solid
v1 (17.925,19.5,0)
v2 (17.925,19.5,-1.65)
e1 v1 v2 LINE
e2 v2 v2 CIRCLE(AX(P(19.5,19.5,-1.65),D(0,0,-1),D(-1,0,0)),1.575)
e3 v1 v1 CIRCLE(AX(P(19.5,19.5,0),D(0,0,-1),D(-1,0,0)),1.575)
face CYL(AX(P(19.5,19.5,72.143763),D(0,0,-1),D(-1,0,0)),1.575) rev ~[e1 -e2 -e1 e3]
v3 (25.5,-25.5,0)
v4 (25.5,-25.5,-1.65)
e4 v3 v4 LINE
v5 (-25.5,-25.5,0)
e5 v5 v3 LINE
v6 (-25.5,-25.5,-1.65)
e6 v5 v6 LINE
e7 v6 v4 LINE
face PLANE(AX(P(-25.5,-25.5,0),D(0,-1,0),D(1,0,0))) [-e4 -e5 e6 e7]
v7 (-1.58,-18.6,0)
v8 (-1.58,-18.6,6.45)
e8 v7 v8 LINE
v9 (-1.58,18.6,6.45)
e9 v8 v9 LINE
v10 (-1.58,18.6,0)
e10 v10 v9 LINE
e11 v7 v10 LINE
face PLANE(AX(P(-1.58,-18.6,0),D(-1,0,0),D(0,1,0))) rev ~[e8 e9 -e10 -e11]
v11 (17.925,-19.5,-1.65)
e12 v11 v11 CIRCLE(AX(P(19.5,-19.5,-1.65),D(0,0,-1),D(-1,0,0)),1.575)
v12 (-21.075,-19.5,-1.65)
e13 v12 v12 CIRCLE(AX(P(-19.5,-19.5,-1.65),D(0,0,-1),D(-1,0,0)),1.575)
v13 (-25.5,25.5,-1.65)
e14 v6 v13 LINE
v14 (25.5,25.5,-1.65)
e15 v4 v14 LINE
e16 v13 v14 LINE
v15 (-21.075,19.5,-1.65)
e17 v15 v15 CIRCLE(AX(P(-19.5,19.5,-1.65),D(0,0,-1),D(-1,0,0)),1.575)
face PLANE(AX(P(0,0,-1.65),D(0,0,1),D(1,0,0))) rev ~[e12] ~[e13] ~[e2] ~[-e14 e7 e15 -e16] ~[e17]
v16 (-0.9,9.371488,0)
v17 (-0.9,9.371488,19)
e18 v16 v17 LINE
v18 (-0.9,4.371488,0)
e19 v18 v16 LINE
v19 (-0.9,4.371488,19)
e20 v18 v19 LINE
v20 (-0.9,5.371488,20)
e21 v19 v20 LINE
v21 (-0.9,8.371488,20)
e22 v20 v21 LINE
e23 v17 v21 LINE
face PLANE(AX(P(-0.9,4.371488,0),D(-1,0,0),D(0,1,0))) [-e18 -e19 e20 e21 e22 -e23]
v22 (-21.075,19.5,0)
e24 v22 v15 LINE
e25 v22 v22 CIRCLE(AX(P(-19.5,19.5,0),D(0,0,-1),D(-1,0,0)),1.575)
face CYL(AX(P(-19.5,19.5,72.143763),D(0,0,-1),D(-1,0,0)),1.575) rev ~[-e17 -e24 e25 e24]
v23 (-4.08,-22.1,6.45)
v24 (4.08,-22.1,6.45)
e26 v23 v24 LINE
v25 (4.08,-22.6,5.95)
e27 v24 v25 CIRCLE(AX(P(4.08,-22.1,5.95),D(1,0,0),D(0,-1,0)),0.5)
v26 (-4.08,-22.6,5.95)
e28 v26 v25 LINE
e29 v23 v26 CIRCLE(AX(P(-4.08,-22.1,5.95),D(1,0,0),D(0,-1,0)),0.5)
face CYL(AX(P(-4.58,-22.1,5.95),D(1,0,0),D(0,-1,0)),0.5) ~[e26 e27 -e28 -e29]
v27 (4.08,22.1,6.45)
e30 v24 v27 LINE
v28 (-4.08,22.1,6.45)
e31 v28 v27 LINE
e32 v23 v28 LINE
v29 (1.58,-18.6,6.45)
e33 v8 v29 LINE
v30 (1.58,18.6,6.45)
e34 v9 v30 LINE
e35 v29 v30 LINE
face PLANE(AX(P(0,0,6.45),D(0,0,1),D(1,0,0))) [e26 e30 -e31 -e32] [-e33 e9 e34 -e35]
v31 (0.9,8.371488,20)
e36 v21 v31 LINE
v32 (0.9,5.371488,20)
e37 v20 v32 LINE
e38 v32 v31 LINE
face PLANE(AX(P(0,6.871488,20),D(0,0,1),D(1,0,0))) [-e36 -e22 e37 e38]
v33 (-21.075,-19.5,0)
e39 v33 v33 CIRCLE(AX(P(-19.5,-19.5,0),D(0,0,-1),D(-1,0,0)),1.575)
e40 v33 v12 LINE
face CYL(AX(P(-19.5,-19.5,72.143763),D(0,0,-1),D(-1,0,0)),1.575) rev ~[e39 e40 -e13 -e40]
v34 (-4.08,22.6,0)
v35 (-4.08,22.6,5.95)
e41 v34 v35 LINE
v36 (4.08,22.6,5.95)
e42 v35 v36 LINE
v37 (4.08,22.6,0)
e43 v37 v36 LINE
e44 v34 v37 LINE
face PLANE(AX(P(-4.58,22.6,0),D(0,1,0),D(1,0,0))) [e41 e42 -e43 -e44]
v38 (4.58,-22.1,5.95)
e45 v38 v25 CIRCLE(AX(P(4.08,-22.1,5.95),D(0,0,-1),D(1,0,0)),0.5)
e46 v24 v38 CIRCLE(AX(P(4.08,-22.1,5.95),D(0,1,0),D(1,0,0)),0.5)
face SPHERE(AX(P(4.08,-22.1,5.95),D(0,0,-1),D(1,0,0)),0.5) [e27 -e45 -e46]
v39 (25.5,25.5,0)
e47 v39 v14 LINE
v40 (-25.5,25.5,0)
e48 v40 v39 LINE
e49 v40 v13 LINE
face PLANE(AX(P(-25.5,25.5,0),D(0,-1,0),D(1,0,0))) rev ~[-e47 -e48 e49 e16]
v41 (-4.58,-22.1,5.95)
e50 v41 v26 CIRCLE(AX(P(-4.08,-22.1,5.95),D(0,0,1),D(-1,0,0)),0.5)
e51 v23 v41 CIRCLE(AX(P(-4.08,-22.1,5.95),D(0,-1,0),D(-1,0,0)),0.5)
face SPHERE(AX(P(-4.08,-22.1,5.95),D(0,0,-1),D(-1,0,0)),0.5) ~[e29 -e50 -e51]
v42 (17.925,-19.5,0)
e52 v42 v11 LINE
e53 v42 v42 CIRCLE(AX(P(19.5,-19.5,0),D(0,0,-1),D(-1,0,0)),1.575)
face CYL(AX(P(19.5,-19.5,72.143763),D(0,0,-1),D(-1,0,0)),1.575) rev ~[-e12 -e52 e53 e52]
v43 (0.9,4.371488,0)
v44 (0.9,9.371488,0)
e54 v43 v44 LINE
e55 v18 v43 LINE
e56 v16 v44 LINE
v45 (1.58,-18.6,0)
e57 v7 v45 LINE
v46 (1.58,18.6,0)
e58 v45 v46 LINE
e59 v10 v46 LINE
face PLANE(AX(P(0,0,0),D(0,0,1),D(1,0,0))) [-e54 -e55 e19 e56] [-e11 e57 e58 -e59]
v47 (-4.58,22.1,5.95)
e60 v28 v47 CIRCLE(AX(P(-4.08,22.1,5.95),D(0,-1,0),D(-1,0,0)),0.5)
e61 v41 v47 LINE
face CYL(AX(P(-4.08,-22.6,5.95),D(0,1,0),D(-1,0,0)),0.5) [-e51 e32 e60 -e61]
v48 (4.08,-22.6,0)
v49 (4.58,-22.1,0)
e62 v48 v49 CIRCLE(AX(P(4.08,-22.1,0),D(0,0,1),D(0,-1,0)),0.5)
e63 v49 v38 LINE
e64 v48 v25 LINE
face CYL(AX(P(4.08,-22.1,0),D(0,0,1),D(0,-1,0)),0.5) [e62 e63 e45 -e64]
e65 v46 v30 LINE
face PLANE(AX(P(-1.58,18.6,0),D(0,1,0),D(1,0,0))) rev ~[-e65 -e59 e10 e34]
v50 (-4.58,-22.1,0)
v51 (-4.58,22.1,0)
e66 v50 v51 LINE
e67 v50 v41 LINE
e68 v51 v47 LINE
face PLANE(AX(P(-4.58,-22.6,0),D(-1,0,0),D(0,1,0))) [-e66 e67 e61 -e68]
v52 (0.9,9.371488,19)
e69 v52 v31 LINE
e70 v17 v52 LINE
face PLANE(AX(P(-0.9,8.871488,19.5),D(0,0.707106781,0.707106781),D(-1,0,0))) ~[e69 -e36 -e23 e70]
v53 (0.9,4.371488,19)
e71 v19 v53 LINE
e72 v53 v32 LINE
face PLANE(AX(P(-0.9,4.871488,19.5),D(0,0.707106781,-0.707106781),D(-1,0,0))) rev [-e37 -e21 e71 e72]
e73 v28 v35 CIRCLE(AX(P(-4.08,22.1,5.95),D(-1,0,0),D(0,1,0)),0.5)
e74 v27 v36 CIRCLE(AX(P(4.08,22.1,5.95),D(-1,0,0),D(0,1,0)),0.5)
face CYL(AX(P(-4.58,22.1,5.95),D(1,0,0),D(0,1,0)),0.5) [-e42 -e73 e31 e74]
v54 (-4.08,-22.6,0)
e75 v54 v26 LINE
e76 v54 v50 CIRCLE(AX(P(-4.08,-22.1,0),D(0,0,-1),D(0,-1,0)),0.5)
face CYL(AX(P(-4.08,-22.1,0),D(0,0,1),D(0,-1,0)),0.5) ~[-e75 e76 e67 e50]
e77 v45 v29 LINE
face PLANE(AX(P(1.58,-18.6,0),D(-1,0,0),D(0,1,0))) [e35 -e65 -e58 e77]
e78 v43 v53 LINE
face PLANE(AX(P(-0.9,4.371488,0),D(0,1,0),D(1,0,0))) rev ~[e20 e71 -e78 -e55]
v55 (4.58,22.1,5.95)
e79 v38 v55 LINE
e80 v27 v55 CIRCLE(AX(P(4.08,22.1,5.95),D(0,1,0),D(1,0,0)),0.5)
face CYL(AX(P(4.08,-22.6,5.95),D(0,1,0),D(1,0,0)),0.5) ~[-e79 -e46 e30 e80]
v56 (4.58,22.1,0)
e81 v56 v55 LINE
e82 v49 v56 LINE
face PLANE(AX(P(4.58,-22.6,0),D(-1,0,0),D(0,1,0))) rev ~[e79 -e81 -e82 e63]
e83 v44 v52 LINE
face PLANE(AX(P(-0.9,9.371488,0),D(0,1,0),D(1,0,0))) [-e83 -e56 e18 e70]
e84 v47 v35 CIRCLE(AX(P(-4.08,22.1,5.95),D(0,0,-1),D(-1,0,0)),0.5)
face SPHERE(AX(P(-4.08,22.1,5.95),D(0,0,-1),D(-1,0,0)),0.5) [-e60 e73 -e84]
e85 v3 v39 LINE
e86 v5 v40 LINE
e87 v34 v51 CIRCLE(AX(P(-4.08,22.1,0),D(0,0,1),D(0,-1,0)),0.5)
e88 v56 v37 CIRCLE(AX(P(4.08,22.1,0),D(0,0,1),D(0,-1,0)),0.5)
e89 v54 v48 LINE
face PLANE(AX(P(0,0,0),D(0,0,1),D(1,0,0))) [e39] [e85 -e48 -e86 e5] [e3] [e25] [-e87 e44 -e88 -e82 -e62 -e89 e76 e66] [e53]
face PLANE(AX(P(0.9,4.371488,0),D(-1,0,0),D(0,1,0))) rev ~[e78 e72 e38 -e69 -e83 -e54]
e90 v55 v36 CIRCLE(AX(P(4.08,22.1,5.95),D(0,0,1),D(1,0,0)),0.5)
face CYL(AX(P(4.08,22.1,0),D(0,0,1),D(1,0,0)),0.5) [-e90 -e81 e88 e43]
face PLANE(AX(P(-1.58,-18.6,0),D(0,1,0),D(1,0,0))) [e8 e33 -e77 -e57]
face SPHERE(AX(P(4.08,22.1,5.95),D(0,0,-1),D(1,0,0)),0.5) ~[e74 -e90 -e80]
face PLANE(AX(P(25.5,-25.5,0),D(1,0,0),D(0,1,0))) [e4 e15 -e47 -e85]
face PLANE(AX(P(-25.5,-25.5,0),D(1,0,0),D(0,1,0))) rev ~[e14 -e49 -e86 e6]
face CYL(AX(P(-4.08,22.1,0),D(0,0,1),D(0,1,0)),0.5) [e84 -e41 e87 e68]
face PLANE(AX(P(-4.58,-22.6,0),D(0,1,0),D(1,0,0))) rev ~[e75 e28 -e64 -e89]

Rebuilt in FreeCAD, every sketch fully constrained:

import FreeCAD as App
import Part
import Sketcher


def edges_at(feature, points):
    """Names of the edges that pass closest to the given points."""
    edges = feature.Shape.Edges
    near = lambda p: min(range(len(edges)), key=lambda i: edges[i].distToShape(Part.Vertex(*p))[0])
    return sorted({f"Edge{near(p) + 1}" for p in points})

doc = App.newDocument("Part")
params = doc.addObject("Spreadsheet::Sheet", "Params")
for row, (alias, value) in enumerate([
    ("sketch1_width", "51 mm"),
    ("pad1_length", "1.65 mm"),
    ("sketch2_diameter", "3.15 mm"),
    ("hole_diameter", "3.15 mm"),
    ("sketch3_height", "45.2 mm"),
    ("sketch3_height2", "37.2 mm"),
    ("sketch3_width", "9.16 mm"),
    ("pad2_length", "6.45 mm"),
    ("fillet_radius", "0.5 mm"),
    ("sketch4_height", "5 mm"),
    ("sketch4_width", "1.8 mm"),
    ("pad3_length", "20 mm"),
    ("chamfer_size", "1 mm"),
], start=1):
    params.set(f"A{row}", alias)
    params.set(f"B{row}", "=" + value)
    params.setAlias(f"B{row}", alias)

body = doc.addObject("PartDesign::Body", "Body")

sketch1 = body.newObject("Sketcher::SketchObject", "Sketch")
sketch1.AttachmentSupport = (doc.getObject("XY_Plane"), [""])
sketch1.MapMode = "FlatFace"
sketch1.addGeometry(Part.LineSegment(App.Vector(-26, 26, 0), App.Vector(-26, -26, 0)), False)
sketch1.addGeometry(Part.LineSegment(App.Vector(-26, -26, 0), App.Vector(26, -26, 0)), False)
sketch1.addGeometry(Part.LineSegment(App.Vector(26, -26, 0), App.Vector(26, 26, 0)), False)
sketch1.addGeometry(Part.LineSegment(App.Vector(26, 26, 0), App.Vector(-26, 26, 0)), False)
sketch1.addConstraint(Sketcher.Constraint("Coincident", 0, 2, 1, 1))
sketch1.addConstraint(Sketcher.Constraint("Coincident", 1, 2, 2, 1))
sketch1.addConstraint(Sketcher.Constraint("Coincident", 2, 2, 3, 1))
sketch1.addConstraint(Sketcher.Constraint("Coincident", 3, 2, 0, 1))
sketch1.addConstraint(Sketcher.Constraint("Vertical", 0))
sketch1.addConstraint(Sketcher.Constraint("Horizontal", 1))
sketch1.addConstraint(Sketcher.Constraint("Vertical", 2))
sketch1.addConstraint(Sketcher.Constraint("Horizontal", 3))
sketch1.addConstraint(Sketcher.Constraint("Symmetric", 0, 2, 2, 2, -1, 1))
sketch1.addConstraint(Sketcher.Constraint("Equal", 3, 0))
sketch1.addConstraint(Sketcher.Constraint("DistanceX", 1, 1, 1, 2, 51.0))
sketch1.setExpression("Constraints[10]", "Params.sketch1_width")
pad1 = body.newObject("PartDesign::Pad", "Pad")
pad1.Profile = sketch1
pad1.setExpression("Length", "Params.pad1_length")
pad1.Reversed = True

sketch2 = body.newObject("Sketcher::SketchObject", "Sketch001")
sketch2.AttachmentSupport = (doc.getObject("XY_Plane"), [""])
sketch2.MapMode = "FlatFace"
sketch2.addGeometry(Part.Circle(App.Vector(-19.5, 19.5, 0), App.Vector(0, 0, 1), 1.6), False)
sketch2.addGeometry(Part.Circle(App.Vector(19.5, 19.5, 0), App.Vector(0, 0, 1), 1.6), False)
sketch2.addGeometry(Part.Circle(App.Vector(19.5, -19.5, 0), App.Vector(0, 0, 1), 1.6), False)
sketch2.addGeometry(Part.Circle(App.Vector(-19.5, -19.5, 0), App.Vector(0, 0, 1), 1.6), False)
sketch2.addConstraint(Sketcher.Constraint("Equal", 0, 1))
sketch2.addConstraint(Sketcher.Constraint("Equal", 1, 2))
sketch2.addConstraint(Sketcher.Constraint("Equal", 2, 3))
sketch2.addConstraint(Sketcher.Constraint("Symmetric", 0, 3, 2, 3, -1, 1))
sketch2.addConstraint(Sketcher.Constraint("Symmetric", 1, 3, 3, 3, -1, 1))
sketch2.addConstraint(Sketcher.Constraint("Symmetric", 0, 3, 1, 3, -2))
sketch2.addConstraint(Sketcher.Constraint("Diameter", 0, 3.15))
sketch2.addConstraint(Sketcher.Constraint("DistanceX", 0, 3, 1, 3, 39.0))
sketch2.addConstraint(Sketcher.Constraint("DistanceY", 2, 3, 1, 3, 39.0))
sketch2.setExpression("Constraints[6]", "Params.sketch2_diameter")
doc.recompute()
hole = body.newObject("PartDesign::Hole", "Hole")
hole.Profile = sketch2
hole.ThreadType = "None"
hole.setExpression("Diameter", "Params.hole_diameter")
hole.DepthType = "ThroughAll"

sketch3 = body.newObject("Sketcher::SketchObject", "Sketch002")
sketch3.AttachmentSupport = (doc.getObject("XY_Plane"), [""])
sketch3.MapMode = "FlatFace"
sketch3.addGeometry(Part.LineSegment(App.Vector(-4.6, 22.6, 0), App.Vector(-4.6, -22.6, 0)), False)
sketch3.addGeometry(Part.LineSegment(App.Vector(-4.6, -22.6, 0), App.Vector(4.6, -22.6, 0)), False)
sketch3.addGeometry(Part.LineSegment(App.Vector(4.6, -22.6, 0), App.Vector(4.6, 22.6, 0)), False)
sketch3.addGeometry(Part.LineSegment(App.Vector(4.6, 22.6, 0), App.Vector(-4.6, 22.6, 0)), False)
sketch3.addGeometry(Part.LineSegment(App.Vector(1.6, -18.6, 0), App.Vector(-1.6, -18.6, 0)), False)
sketch3.addGeometry(Part.LineSegment(App.Vector(-1.6, -18.6, 0), App.Vector(-1.6, 18.6, 0)), False)
sketch3.addGeometry(Part.LineSegment(App.Vector(-1.6, 18.6, 0), App.Vector(1.6, 18.6, 0)), False)
sketch3.addGeometry(Part.LineSegment(App.Vector(1.6, 18.6, 0), App.Vector(1.6, -18.6, 0)), False)
sketch3.addConstraint(Sketcher.Constraint("Coincident", 0, 2, 1, 1))
sketch3.addConstraint(Sketcher.Constraint("Coincident", 1, 2, 2, 1))
sketch3.addConstraint(Sketcher.Constraint("Coincident", 2, 2, 3, 1))
sketch3.addConstraint(Sketcher.Constraint("Coincident", 3, 2, 0, 1))
sketch3.addConstraint(Sketcher.Constraint("Coincident", 4, 2, 5, 1))
sketch3.addConstraint(Sketcher.Constraint("Coincident", 5, 2, 6, 1))
sketch3.addConstraint(Sketcher.Constraint("Coincident", 6, 2, 7, 1))
sketch3.addConstraint(Sketcher.Constraint("Coincident", 7, 2, 4, 1))
sketch3.addConstraint(Sketcher.Constraint("Vertical", 0))
sketch3.addConstraint(Sketcher.Constraint("Horizontal", 1))
sketch3.addConstraint(Sketcher.Constraint("Vertical", 2))
sketch3.addConstraint(Sketcher.Constraint("Horizontal", 3))
sketch3.addConstraint(Sketcher.Constraint("Horizontal", 4))
sketch3.addConstraint(Sketcher.Constraint("Vertical", 5))
sketch3.addConstraint(Sketcher.Constraint("Horizontal", 6))
sketch3.addConstraint(Sketcher.Constraint("Vertical", 7))
sketch3.addConstraint(Sketcher.Constraint("Symmetric", 0, 2, 2, 2, -1, 1))
sketch3.addConstraint(Sketcher.Constraint("Symmetric", 4, 2, 6, 2, -1, 1))
sketch3.addConstraint(Sketcher.Constraint("DistanceY", 0, 2, 0, 1, 45.2))
sketch3.addConstraint(Sketcher.Constraint("DistanceY", 5, 1, 5, 2, 37.2))
sketch3.addConstraint(Sketcher.Constraint("DistanceX", 0, 2, 4, 2, 3.0))
sketch3.addConstraint(Sketcher.Constraint("DistanceX", 1, 1, 1, 2, 9.16))
sketch3.setExpression("Constraints[18]", "Params.sketch3_height")
sketch3.setExpression("Constraints[19]", "Params.sketch3_height2")
sketch3.setExpression("Constraints[21]", "Params.sketch3_width")
pad2 = body.newObject("PartDesign::Pad", "Pad001")
pad2.Profile = sketch3
pad2.setExpression("Length", "Params.pad2_length")
doc.recompute()

fillet = body.newObject("PartDesign::Fillet", "Fillet")
fillet.Base = (pad2, edges_at(pad2, [
    (4.58, 22.6, 3.225),
    (-4.58, 22.6, 3.225),
    (4.58, -22.6, 3.225),
    (-4.58, -22.6, 3.225),
    (4.58, 0, 6.45),
    (-4.58, 0, 6.45),
    (0, -22.6, 6.45),
    (0, 22.6, 6.45),
]))
fillet.setExpression("Radius", "Params.fillet_radius")

sketch4 = body.newObject("Sketcher::SketchObject", "Sketch003")
sketch4.AttachmentSupport = (doc.getObject("XY_Plane"), [""])
sketch4.MapMode = "FlatFace"
sketch4.addGeometry(Part.LineSegment(App.Vector(-0.9, 9.4, 0), App.Vector(-0.9, 4.4, 0)), False)
sketch4.addGeometry(Part.LineSegment(App.Vector(-0.9, 4.4, 0), App.Vector(0.9, 4.4, 0)), False)
sketch4.addGeometry(Part.LineSegment(App.Vector(0.9, 4.4, 0), App.Vector(0.9, 9.4, 0)), False)
sketch4.addGeometry(Part.LineSegment(App.Vector(0.9, 9.4, 0), App.Vector(-0.9, 9.4, 0)), False)
sketch4.addConstraint(Sketcher.Constraint("Coincident", 0, 2, 1, 1))
sketch4.addConstraint(Sketcher.Constraint("Coincident", 1, 2, 2, 1))
sketch4.addConstraint(Sketcher.Constraint("Coincident", 2, 2, 3, 1))
sketch4.addConstraint(Sketcher.Constraint("Coincident", 3, 2, 0, 1))
sketch4.addConstraint(Sketcher.Constraint("Vertical", 0))
sketch4.addConstraint(Sketcher.Constraint("Horizontal", 1))
sketch4.addConstraint(Sketcher.Constraint("Vertical", 2))
sketch4.addConstraint(Sketcher.Constraint("Horizontal", 3))
sketch4.addConstraint(Sketcher.Constraint("DistanceY", 0, 2, 0, 1, 5.0))
sketch4.addConstraint(Sketcher.Constraint("DistanceX", 1, 1, 1, 2, 1.8))
sketch4.addConstraint(Sketcher.Constraint("DistanceX", 0, 2, -1, 1, 0.9))
sketch4.addConstraint(Sketcher.Constraint("DistanceY", -1, 1, 0, 2, 4.371488))
sketch4.setExpression("Constraints[8]", "Params.sketch4_height")
sketch4.setExpression("Constraints[9]", "Params.sketch4_width")
pad3 = body.newObject("PartDesign::Pad", "Pad002")
pad3.Profile = sketch4
pad3.setExpression("Length", "Params.pad3_length")
doc.recompute()

chamfer = body.newObject("PartDesign::Chamfer", "Chamfer")
chamfer.Base = (pad3, edges_at(pad3, [(0, 4.371, 20), (0, 9.371, 20)]))
chamfer.setExpression("Size", "Params.chamfer_size")

doc.recompute()
